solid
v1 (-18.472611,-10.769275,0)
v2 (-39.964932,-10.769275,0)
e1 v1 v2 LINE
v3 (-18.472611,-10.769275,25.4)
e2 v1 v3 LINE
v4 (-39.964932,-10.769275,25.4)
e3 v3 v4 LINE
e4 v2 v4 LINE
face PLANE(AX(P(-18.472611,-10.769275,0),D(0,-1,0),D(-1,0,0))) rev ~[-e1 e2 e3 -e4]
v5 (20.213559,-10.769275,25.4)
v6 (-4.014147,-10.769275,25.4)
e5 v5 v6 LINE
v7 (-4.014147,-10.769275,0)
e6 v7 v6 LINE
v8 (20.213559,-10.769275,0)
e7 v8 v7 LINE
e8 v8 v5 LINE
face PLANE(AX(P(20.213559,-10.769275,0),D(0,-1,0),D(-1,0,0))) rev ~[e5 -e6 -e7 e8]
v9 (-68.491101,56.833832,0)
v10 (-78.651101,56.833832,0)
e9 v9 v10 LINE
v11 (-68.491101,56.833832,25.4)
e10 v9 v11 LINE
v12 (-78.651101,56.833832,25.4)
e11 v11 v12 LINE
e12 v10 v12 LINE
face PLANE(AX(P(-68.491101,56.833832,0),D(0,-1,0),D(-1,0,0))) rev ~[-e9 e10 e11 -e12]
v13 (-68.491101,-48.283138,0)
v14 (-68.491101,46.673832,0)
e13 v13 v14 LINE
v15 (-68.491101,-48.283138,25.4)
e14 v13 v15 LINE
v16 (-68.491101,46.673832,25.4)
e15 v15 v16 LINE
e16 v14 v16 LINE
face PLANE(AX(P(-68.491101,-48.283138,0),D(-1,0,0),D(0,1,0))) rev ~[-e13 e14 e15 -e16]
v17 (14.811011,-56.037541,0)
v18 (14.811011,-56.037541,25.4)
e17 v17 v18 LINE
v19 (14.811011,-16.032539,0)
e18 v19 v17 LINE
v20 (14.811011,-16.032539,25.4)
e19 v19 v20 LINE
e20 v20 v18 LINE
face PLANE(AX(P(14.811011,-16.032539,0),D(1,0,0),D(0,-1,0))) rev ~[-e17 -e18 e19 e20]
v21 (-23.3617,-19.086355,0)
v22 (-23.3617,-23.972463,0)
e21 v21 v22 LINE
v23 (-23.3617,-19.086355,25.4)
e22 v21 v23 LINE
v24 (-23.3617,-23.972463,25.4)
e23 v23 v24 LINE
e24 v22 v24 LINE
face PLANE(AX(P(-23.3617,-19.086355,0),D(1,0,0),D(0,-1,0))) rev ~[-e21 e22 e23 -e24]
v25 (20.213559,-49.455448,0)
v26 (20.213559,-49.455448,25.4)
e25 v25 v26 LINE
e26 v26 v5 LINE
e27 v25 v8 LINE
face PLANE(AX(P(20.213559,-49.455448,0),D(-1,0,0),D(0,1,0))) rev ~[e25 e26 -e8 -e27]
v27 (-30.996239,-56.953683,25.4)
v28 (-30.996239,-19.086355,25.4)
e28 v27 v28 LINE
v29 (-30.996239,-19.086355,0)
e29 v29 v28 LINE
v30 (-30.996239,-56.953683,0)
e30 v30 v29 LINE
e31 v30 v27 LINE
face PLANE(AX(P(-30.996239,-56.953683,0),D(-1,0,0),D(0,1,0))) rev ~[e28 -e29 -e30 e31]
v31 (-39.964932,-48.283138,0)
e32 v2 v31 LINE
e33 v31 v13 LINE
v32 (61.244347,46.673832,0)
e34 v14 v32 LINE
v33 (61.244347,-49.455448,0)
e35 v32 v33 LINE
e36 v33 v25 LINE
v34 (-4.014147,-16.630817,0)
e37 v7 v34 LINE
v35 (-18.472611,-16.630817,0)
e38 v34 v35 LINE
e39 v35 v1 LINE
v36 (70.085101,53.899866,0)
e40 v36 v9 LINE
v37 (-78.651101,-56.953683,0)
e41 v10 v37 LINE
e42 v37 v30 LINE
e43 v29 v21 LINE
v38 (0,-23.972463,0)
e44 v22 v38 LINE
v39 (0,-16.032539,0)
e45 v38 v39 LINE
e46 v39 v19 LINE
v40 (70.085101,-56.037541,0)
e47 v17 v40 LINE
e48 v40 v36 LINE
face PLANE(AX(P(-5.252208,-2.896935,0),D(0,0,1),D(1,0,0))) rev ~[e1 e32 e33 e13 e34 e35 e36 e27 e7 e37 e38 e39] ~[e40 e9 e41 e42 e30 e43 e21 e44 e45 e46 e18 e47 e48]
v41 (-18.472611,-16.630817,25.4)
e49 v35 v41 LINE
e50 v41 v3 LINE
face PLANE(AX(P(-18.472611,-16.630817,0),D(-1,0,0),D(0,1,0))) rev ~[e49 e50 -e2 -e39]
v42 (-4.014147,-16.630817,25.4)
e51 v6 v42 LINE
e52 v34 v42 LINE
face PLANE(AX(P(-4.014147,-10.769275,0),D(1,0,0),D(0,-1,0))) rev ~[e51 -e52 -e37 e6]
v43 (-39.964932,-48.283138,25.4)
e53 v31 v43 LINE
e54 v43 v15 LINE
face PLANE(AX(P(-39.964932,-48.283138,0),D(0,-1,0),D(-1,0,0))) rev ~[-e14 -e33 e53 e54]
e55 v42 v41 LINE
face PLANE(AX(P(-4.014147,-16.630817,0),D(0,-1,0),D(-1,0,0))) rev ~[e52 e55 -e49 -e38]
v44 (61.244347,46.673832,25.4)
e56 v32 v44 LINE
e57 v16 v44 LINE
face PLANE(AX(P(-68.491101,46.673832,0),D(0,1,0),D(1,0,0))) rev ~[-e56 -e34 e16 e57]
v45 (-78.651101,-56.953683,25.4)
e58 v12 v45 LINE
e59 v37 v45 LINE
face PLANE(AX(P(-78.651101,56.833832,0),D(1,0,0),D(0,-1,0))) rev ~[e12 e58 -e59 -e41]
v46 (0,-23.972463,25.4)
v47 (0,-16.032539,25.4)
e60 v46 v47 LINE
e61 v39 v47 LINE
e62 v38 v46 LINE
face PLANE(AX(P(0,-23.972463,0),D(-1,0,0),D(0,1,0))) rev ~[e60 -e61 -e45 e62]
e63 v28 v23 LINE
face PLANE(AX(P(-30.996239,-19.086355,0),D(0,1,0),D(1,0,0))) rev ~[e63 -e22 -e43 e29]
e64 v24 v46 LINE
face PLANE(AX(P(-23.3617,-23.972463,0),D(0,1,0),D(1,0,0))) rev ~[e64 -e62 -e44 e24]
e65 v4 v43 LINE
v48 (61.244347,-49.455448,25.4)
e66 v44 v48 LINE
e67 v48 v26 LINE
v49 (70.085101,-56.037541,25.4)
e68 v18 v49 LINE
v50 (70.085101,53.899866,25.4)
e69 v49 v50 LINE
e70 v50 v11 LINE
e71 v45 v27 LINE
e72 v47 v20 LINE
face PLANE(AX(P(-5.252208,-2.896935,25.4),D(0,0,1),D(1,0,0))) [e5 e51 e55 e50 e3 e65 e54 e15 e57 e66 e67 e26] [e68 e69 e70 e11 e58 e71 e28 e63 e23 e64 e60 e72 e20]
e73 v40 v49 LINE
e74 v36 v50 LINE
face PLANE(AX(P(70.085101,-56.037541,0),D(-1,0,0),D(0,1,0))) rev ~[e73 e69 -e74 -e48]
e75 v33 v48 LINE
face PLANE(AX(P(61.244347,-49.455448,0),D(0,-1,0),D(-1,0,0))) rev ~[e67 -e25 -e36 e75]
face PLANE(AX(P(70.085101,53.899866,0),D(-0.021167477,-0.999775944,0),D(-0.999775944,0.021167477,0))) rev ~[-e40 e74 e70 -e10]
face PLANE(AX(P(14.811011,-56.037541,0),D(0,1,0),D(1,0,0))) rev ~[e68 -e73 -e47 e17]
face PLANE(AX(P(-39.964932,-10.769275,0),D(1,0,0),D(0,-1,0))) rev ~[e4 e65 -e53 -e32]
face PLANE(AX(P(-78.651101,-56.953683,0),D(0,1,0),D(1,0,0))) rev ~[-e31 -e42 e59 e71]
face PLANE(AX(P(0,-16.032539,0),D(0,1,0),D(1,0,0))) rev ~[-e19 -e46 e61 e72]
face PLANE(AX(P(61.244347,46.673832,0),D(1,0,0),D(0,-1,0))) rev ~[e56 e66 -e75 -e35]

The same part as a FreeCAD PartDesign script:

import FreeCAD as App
import Part
import Sketcher

V = App.Vector
Q = App.Units.Quantity

doc = App.newDocument("Part")
body = doc.addObject("PartDesign::Body", "Body")

sketch1 = doc.addObject("Sketcher::SketchObject", "Sketch")
body.addObject(sketch1)
sketch1.AttachmentSupport = (doc.XY_Plane, [""])
sketch1.MapMode = "FlatFace"
sketch1.addGeometry(Part.LineSegment(V(70.1, 53.9, 0), V(-68.5, 56.8, 0)), False)
sketch1.addGeometry(Part.LineSegment(V(-68.5, 56.8, 0), V(-78.7, 56.8, 0)), False)
sketch1.addGeometry(Part.LineSegment(V(-78.7, 56.8, 0), V(-78.7, -57, 0)), False)
sketch1.addGeometry(Part.LineSegment(V(-78.7, -57, 0), V(-31, -57, 0)), False)
sketch1.addGeometry(Part.LineSegment(V(-31, -57, 0), V(-31, -19.1, 0)), False)
sketch1.addGeometry(Part.LineSegment(V(-31, -19.1, 0), V(-23.4, -19.1, 0)), False)
sketch1.addGeometry(Part.LineSegment(V(-23.4, -19.1, 0), V(-23.4, -24, 0)), False)
sketch1.addGeometry(Part.LineSegment(V(-23.4, -24, 0), V(0, -24, 0)), False)
sketch1.addGeometry(Part.LineSegment(V(0, -24, 0), V(0, -16, 0)), False)
sketch1.addGeometry(Part.LineSegment(V(0, -16, 0), V(14.8, -16, 0)), False)
sketch1.addGeometry(Part.LineSegment(V(14.8, -16, 0), V(14.8, -56, 0)), False)
sketch1.addGeometry(Part.LineSegment(V(14.8, -56, 0), V(70.1, -56, 0)), False)
sketch1.addGeometry(Part.LineSegment(V(70.1, -56, 0), V(70.1, 53.9, 0)), False)
sketch1.addGeometry(Part.LineSegment(V(-68.5, -48.3, 0), V(-68.5, 46.7, 0)), False)
sketch1.addGeometry(Part.LineSegment(V(-68.5, 46.7, 0), V(61.2, 46.7, 0)), False)
sketch1.addGeometry(Part.LineSegment(V(61.2, 46.7, 0), V(61.2, -49.5, 0)), False)
sketch1.addGeometry(Part.LineSegment(V(61.2, -49.5, 0), V(20.2, -49.5, 0)), False)
sketch1.addGeometry(Part.LineSegment(V(20.2, -49.5, 0), V(20.2, -10.8, 0)), False)
sketch1.addGeometry(Part.LineSegment(V(20.2, -10.8, 0), V(-4, -10.8, 0)), False)
sketch1.addGeometry(Part.LineSegment(V(-4, -10.8, 0), V(-4, -16.6, 0)), False)
sketch1.addGeometry(Part.LineSegment(V(-4, -16.6, 0), V(-18.5, -16.6, 0)), False)
sketch1.addGeometry(Part.LineSegment(V(-18.5, -16.6, 0), V(-18.5, -10.8, 0)), False)
sketch1.addGeometry(Part.LineSegment(V(-18.5, -10.8, 0), V(-40, -10.8, 0)), False)
sketch1.addGeometry(Part.LineSegment(V(-40, -10.8, 0), V(-40, -48.3, 0)), False)
sketch1.addGeometry(Part.LineSegment(V(-40, -48.3, 0), V(-68.5, -48.3, 0)), False)
sketch1.addConstraint(Sketcher.Constraint("Coincident", 0, 2, 1, 1))
sketch1.addConstraint(Sketcher.Constraint("Coincident", 1, 2, 2, 1))
sketch1.addConstraint(Sketcher.Constraint("Coincident", 2, 2, 3, 1))
sketch1.addConstraint(Sketcher.Constraint("Coincident", 3, 2, 4, 1))
sketch1.addConstraint(Sketcher.Constraint("Coincident", 4, 2, 5, 1))
sketch1.addConstraint(Sketcher.Constraint("Coincident", 5, 2, 6, 1))
sketch1.addConstraint(Sketcher.Constraint("Coincident", 6, 2, 7, 1))
sketch1.addConstraint(Sketcher.Constraint("Coincident", 7, 2, 8, 1))
sketch1.addConstraint(Sketcher.Constraint("Coincident", 8, 2, 9, 1))
sketch1.addConstraint(Sketcher.Constraint("Coincident", 9, 2, 10, 1))
sketch1.addConstraint(Sketcher.Constraint("Coincident", 10, 2, 11, 1))
sketch1.addConstraint(Sketcher.Constraint("Coincident", 11, 2, 12, 1))
sketch1.addConstraint(Sketcher.Constraint("Coincident", 12, 2, 0, 1))
sketch1.addConstraint(Sketcher.Constraint("Coincident", 13, 2, 14, 1))
sketch1.addConstraint(Sketcher.Constraint("Coincident", 14, 2, 15, 1))
sketch1.addConstraint(Sketcher.Constraint("Coincident", 15, 2, 16, 1))
sketch1.addConstraint(Sketcher.Constraint("Coincident", 16, 2, 17, 1))
sketch1.addConstraint(Sketcher.Constraint("Coincident", 17, 2, 18, 1))
sketch1.addConstraint(Sketcher.Constraint("Coincident", 18, 2, 19, 1))
sketch1.addConstraint(Sketcher.Constraint("Coincident", 19, 2, 20, 1))
sketch1.addConstraint(Sketcher.Constraint("Coincident", 20, 2, 21, 1))
sketch1.addConstraint(Sketcher.Constraint("Coincident", 21, 2, 22, 1))
sketch1.addConstraint(Sketcher.Constraint("Coincident", 22, 2, 23, 1))
sketch1.addConstraint(Sketcher.Constraint("Coincident", 23, 2, 24, 1))
sketch1.addConstraint(Sketcher.Constraint("Coincident", 24, 2, 13, 1))
sketch1.addConstraint(Sketcher.Constraint("Horizontal", 1))
sketch1.addConstraint(Sketcher.Constraint("Vertical", 2))
sketch1.addConstraint(Sketcher.Constraint("Horizontal", 3))
sketch1.addConstraint(Sketcher.Constraint("Vertical", 4))
sketch1.addConstraint(Sketcher.Constraint("Horizontal", 5))
sketch1.addConstraint(Sketcher.Constraint("Vertical", 6))
sketch1.addConstraint(Sketcher.Constraint("Horizontal", 7))
sketch1.addConstraint(Sketcher.Constraint("Vertical", 8))
sketch1.addConstraint(Sketcher.Constraint("Horizontal", 9))
sketch1.addConstraint(Sketcher.Constraint("Vertical", 10))
sketch1.addConstraint(Sketcher.Constraint("Horizontal", 11))
sketch1.addConstraint(Sketcher.Constraint("Vertical", 12))
sketch1.addConstraint(Sketcher.Constraint("Vertical", 13))
sketch1.addConstraint(Sketcher.Constraint("Horizontal", 14))
sketch1.addConstraint(Sketcher.Constraint("Vertical", 15))
sketch1.addConstraint(Sketcher.Constraint("Horizontal", 16))
sketch1.addConstraint(Sketcher.Constraint("Vertical", 17))
sketch1.addConstraint(Sketcher.Constraint("Horizontal", 18))
sketch1.addConstraint(Sketcher.Constraint("Vertical", 19))
sketch1.addConstraint(Sketcher.Constraint("Horizontal", 20))
sketch1.addConstraint(Sketcher.Constraint("Vertical", 21))
sketch1.addConstraint(Sketcher.Constraint("Horizontal", 22))
sketch1.addConstraint(Sketcher.Constraint("Vertical", 23))
sketch1.addConstraint(Sketcher.Constraint("Horizontal", 24))
sketch1.addConstraint(Sketcher.Constraint("PointOnObject", 7, 2, -2))
sketch1.addConstraint(Sketcher.Constraint("Horizontal", 18, 2, 21, 2))
sketch1.addConstraint(Sketcher.Constraint("Vertical", 0, 2, 13, 2))
sketch1.addConstraint(Sketcher.Constraint("DistanceX", 1, 2, 1, 1, Q("0.4 in")))
sketch1.addConstraint(Sketcher.Constraint("DistanceY", 13, 2, 0, 2, Q("0.4 in")))
sketch1.addConstraint(Sketcher.Constraint("DistanceY", 10, 2, 10, 1, Q("1.5750001 in")))
sketch1.addConstraint(Sketcher.Constraint("DistanceX", 7, 1, 7, 2, Q("23.3617 mm")))
sketch1.addConstraint(Sketcher.Constraint("DistanceX", 0, 2, -1, 1, Q("2.6965 in")))
sketch1.addConstraint(Sketcher.Constraint("DistanceX", 3, 1, 3, 2, Q("47.654862 mm")))
sketch1.addConstraint(Sketcher.Constraint("DistanceX", 9, 1, 9, 2, Q("14.811011 mm")))
sketch1.addConstraint(Sketcher.Constraint("DistanceX", 11, 1, 11, 2, Q("55.27409 mm")))
sketch1.addConstraint(Sketcher.Constraint("DistanceX", 14, 1, 14, 2, Q("129.735448 mm")))
sketch1.addConstraint(Sketcher.Constraint("DistanceX", 22, 2, 22, 1, Q("21.492321 mm")))
sketch1.addConstraint(Sketcher.Constraint("DistanceX", 24, 2, 24, 1, Q("28.526169 mm")))
sketch1.addConstraint(Sketcher.Constraint("DistanceY", 13, 1, 13, 2, Q("94.95697 mm")))
sketch1.addConstraint(Sketcher.Constraint("DistanceY", 15, 2, 15, 1, Q("96.12928 mm")))
sketch1.addConstraint(Sketcher.Constraint("DistanceX", 16, 2, 16, 1, Q("41.030788 mm")))
sketch1.addConstraint(Sketcher.Constraint("DistanceX", 18, 2, 18, 1, Q("24.227706 mm")))
sketch1.addConstraint(Sketcher.Constraint("DistanceY", 2, 2, 2, 1, Q("113.787515 mm")))
sketch1.addConstraint(Sketcher.Constraint("DistanceY", 4, 1, 4, 2, Q("37.867328 mm")))
sketch1.addConstraint(Sketcher.Constraint("DistanceY", 6, 2, 6, 1, Q("4.886108 mm")))
sketch1.addConstraint(Sketcher.Constraint("DistanceY", 8, 1, 8, 2, Q("7.939924 mm")))
sketch1.addConstraint(Sketcher.Constraint("DistanceY", 12, 1, 12, 2, Q("109.937407 mm")))
sketch1.addConstraint(Sketcher.Constraint("DistanceY", 17, 1, 17, 2, Q("38.686173 mm")))
sketch1.addConstraint(Sketcher.Constraint("DistanceY", 19, 2, 19, 1, Q("5.861542 mm")))
sketch1.addConstraint(Sketcher.Constraint("DistanceY", 8, 2, -1, 1, Q("16.032539 mm")))
pad1 = doc.addObject("PartDesign::Pad", "Pad")
body.addObject(pad1)
pad1.Profile = sketch1
pad1.Length = Q("1 in")

doc.recompute()
